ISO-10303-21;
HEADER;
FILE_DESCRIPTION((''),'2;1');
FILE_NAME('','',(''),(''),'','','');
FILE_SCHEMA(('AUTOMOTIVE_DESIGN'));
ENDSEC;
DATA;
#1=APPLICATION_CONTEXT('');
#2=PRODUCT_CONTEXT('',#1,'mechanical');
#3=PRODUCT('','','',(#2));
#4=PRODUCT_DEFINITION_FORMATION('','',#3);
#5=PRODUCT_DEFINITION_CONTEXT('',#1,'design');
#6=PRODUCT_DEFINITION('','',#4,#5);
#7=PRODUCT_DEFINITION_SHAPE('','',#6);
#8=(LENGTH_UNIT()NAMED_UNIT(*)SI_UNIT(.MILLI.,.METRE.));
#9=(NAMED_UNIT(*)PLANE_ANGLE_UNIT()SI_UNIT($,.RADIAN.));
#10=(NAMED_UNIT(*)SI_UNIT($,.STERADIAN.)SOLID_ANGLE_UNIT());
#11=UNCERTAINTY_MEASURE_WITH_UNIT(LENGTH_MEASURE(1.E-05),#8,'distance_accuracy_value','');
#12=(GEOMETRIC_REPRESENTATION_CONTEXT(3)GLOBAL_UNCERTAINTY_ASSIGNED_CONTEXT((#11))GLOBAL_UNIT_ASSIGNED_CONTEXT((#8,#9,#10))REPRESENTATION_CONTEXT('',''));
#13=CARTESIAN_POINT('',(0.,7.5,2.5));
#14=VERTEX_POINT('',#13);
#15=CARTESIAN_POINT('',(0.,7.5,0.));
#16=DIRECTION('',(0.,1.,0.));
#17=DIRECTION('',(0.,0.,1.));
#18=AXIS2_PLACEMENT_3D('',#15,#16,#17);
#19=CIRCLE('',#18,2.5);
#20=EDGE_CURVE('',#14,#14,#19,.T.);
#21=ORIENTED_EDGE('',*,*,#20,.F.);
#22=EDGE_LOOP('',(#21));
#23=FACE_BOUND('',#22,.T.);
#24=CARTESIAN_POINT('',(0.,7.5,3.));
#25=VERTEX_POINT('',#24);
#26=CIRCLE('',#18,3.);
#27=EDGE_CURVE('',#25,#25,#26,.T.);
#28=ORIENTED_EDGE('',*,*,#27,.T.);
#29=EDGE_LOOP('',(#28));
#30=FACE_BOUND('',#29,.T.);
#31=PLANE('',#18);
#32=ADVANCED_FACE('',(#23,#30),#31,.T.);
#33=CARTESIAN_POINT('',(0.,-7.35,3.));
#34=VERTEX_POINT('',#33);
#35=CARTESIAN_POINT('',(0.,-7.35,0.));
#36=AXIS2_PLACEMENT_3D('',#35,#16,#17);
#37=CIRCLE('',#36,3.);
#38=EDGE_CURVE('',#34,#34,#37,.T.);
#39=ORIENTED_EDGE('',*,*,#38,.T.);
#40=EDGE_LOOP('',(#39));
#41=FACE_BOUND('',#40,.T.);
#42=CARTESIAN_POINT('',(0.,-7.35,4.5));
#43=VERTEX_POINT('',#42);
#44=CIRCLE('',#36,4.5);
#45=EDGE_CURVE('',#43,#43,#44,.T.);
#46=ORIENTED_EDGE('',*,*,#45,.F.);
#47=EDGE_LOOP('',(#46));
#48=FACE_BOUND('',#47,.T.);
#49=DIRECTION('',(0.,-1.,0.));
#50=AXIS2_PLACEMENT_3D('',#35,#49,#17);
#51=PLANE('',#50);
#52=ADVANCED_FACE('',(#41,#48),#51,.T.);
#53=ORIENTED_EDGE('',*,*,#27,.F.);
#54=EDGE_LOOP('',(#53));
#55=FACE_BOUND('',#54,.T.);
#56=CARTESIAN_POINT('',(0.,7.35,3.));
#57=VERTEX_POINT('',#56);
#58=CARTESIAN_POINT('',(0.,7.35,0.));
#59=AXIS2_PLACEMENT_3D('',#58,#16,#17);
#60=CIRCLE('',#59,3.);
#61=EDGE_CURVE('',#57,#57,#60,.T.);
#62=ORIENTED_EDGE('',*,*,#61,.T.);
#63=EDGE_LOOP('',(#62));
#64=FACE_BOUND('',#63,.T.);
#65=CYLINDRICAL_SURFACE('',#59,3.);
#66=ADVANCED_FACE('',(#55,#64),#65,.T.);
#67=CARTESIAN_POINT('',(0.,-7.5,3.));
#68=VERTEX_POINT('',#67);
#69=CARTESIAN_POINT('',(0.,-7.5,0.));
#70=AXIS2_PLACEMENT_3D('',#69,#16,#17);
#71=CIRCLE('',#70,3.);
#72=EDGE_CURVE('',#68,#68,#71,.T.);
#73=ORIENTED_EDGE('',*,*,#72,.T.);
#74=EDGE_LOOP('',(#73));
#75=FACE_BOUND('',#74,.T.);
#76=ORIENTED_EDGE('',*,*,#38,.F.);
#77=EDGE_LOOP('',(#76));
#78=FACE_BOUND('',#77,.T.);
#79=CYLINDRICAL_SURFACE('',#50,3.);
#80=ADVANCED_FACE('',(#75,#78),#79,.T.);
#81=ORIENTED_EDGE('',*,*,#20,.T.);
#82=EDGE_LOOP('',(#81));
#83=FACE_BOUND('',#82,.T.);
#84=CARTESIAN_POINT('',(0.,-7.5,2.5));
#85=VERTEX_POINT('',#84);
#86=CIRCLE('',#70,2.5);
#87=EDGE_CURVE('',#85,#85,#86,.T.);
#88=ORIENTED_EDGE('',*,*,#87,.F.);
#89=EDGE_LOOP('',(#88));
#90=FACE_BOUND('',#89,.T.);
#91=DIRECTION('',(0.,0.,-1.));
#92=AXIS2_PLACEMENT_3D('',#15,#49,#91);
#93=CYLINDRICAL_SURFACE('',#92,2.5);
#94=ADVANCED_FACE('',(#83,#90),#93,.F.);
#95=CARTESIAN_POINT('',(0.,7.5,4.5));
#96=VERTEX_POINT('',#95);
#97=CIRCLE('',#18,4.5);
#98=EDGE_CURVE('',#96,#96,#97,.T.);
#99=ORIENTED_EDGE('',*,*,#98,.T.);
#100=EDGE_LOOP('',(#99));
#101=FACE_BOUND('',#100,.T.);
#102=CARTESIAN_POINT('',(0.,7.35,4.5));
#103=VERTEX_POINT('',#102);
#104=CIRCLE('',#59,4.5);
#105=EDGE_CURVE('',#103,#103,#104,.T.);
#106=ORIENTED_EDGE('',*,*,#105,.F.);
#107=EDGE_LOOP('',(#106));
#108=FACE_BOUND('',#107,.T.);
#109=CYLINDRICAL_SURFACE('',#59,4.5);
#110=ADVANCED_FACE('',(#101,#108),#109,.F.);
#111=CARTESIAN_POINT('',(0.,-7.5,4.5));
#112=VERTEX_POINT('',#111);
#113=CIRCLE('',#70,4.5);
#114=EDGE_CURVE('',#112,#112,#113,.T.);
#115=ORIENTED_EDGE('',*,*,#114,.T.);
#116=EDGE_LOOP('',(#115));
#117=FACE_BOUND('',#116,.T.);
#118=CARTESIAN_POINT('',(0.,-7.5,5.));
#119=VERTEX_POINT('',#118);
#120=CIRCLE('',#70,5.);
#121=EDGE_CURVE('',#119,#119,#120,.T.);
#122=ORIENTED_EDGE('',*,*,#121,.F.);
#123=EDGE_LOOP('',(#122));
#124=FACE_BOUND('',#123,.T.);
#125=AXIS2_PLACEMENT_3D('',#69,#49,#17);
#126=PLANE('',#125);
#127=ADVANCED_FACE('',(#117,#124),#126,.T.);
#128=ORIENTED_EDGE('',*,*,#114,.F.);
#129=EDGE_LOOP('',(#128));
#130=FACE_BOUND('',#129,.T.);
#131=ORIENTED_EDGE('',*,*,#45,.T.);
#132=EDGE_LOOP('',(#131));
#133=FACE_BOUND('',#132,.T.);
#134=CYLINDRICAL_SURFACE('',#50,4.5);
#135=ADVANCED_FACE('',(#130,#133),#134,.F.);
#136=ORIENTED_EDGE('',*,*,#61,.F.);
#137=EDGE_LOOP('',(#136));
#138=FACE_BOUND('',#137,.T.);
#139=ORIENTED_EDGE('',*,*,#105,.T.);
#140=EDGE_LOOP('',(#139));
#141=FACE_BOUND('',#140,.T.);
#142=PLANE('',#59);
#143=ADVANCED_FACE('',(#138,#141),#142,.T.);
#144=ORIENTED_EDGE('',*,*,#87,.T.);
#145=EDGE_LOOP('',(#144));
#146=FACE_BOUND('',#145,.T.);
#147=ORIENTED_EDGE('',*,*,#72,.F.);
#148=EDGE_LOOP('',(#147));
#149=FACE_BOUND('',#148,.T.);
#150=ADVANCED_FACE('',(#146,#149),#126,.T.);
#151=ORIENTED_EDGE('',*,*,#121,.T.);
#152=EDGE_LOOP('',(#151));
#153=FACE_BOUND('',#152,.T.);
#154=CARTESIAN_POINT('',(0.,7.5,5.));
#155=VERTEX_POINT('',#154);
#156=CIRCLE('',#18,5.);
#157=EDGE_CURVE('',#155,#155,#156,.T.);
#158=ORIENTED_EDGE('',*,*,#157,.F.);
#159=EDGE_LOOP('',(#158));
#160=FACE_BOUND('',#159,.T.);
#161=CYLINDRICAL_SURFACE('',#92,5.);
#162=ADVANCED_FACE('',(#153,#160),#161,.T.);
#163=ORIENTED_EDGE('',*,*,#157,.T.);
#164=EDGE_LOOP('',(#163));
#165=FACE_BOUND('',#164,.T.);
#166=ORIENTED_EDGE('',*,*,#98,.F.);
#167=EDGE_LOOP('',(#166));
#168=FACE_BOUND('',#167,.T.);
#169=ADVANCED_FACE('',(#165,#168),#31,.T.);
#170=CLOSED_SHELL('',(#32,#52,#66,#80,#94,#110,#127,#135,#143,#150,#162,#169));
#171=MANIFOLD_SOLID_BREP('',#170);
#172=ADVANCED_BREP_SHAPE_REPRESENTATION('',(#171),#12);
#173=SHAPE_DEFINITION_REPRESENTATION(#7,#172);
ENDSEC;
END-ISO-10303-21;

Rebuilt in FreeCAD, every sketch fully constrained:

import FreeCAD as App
import Part
import Sketcher

V = App.Vector
Q = App.Units.Quantity

doc = App.newDocument("Part")
body = doc.addObject("PartDesign::Body", "Body")

sketch1 = body.newObject("Sketcher::SketchObject", "Sketch")
sketch1.AttachmentSupport = (doc.getObject("XZ_Plane"), [""])
sketch1.MapMode = "FlatFace"
sketch1.addGeometry([
    Part.Circle(V(0, 0, 0), V(0, 0, 1), 5),
    Part.Circle(V(0, 0, 0), V(0, 0, 1), 2.5),
], False)
sketch1.addConstraint([
    Sketcher.Constraint("Coincident", 0, 3, -1, 1),
    Sketcher.Constraint("Coincident", 1, 3, -1, 1),
    Sketcher.Constraint("Diameter", 0, Q("10 mm")),
    Sketcher.Constraint("Diameter", 1, Q("5 mm")),
])
pad1 = body.newObject("PartDesign::Pad", "Pad")
pad1.Profile = sketch1
pad1.Length = 7.5
pad1.Reversed = True

sketch2 = body.newObject("Sketcher::SketchObject", "Sketch001")
sketch2.AttachmentSupport = (doc.getObject("XZ_Plane"), [""])
sketch2.MapMode = "FlatFace"
sketch2.AttachmentOffset = App.Placement(V(0, 0, -7.5), App.Rotation())
sketch2.addGeometry([
    Part.Circle(V(0, 0, 0), V(0, 0, 1), 4.5),
    Part.Circle(V(0, 0, 0), V(0, 0, 1), 3),
], False)
sketch2.addConstraint([
    Sketcher.Constraint("Coincident", 0, 3, -1, 1),
    Sketcher.Constraint("Coincident", 1, 3, -1, 1),
    Sketcher.Constraint("Diameter", 0, Q("9 mm")),
    Sketcher.Constraint("Diameter", 1, Q("6 mm")),
])
pocket1 = body.newObject("PartDesign::Pocket", "Pocket")
pocket1.Profile = sketch2
pocket1.Length = 0.15
pocket1.Reversed = True
body2 = doc.addObject("PartDesign::Body", "Body001")
doc.recompute()

body2.BaseFeature = body
doc.recompute()

mirroring = doc.addObject("Part::Mirroring", "Mirroring")
mirroring.Source = body
mirroring.Base = V(0, 0, 0)
mirroring.Normal = V(0, 1, 0)
body3 = doc.addObject("PartDesign::Body", "Body002")
body3.BaseFeature = mirroring
boolean = body2.newObject("PartDesign::Boolean", "Boolean")
boolean.Type = "Fuse"
boolean.addObjects([body3])
doc.recompute()
mirroring.Visibility = False

doc.recompute()
